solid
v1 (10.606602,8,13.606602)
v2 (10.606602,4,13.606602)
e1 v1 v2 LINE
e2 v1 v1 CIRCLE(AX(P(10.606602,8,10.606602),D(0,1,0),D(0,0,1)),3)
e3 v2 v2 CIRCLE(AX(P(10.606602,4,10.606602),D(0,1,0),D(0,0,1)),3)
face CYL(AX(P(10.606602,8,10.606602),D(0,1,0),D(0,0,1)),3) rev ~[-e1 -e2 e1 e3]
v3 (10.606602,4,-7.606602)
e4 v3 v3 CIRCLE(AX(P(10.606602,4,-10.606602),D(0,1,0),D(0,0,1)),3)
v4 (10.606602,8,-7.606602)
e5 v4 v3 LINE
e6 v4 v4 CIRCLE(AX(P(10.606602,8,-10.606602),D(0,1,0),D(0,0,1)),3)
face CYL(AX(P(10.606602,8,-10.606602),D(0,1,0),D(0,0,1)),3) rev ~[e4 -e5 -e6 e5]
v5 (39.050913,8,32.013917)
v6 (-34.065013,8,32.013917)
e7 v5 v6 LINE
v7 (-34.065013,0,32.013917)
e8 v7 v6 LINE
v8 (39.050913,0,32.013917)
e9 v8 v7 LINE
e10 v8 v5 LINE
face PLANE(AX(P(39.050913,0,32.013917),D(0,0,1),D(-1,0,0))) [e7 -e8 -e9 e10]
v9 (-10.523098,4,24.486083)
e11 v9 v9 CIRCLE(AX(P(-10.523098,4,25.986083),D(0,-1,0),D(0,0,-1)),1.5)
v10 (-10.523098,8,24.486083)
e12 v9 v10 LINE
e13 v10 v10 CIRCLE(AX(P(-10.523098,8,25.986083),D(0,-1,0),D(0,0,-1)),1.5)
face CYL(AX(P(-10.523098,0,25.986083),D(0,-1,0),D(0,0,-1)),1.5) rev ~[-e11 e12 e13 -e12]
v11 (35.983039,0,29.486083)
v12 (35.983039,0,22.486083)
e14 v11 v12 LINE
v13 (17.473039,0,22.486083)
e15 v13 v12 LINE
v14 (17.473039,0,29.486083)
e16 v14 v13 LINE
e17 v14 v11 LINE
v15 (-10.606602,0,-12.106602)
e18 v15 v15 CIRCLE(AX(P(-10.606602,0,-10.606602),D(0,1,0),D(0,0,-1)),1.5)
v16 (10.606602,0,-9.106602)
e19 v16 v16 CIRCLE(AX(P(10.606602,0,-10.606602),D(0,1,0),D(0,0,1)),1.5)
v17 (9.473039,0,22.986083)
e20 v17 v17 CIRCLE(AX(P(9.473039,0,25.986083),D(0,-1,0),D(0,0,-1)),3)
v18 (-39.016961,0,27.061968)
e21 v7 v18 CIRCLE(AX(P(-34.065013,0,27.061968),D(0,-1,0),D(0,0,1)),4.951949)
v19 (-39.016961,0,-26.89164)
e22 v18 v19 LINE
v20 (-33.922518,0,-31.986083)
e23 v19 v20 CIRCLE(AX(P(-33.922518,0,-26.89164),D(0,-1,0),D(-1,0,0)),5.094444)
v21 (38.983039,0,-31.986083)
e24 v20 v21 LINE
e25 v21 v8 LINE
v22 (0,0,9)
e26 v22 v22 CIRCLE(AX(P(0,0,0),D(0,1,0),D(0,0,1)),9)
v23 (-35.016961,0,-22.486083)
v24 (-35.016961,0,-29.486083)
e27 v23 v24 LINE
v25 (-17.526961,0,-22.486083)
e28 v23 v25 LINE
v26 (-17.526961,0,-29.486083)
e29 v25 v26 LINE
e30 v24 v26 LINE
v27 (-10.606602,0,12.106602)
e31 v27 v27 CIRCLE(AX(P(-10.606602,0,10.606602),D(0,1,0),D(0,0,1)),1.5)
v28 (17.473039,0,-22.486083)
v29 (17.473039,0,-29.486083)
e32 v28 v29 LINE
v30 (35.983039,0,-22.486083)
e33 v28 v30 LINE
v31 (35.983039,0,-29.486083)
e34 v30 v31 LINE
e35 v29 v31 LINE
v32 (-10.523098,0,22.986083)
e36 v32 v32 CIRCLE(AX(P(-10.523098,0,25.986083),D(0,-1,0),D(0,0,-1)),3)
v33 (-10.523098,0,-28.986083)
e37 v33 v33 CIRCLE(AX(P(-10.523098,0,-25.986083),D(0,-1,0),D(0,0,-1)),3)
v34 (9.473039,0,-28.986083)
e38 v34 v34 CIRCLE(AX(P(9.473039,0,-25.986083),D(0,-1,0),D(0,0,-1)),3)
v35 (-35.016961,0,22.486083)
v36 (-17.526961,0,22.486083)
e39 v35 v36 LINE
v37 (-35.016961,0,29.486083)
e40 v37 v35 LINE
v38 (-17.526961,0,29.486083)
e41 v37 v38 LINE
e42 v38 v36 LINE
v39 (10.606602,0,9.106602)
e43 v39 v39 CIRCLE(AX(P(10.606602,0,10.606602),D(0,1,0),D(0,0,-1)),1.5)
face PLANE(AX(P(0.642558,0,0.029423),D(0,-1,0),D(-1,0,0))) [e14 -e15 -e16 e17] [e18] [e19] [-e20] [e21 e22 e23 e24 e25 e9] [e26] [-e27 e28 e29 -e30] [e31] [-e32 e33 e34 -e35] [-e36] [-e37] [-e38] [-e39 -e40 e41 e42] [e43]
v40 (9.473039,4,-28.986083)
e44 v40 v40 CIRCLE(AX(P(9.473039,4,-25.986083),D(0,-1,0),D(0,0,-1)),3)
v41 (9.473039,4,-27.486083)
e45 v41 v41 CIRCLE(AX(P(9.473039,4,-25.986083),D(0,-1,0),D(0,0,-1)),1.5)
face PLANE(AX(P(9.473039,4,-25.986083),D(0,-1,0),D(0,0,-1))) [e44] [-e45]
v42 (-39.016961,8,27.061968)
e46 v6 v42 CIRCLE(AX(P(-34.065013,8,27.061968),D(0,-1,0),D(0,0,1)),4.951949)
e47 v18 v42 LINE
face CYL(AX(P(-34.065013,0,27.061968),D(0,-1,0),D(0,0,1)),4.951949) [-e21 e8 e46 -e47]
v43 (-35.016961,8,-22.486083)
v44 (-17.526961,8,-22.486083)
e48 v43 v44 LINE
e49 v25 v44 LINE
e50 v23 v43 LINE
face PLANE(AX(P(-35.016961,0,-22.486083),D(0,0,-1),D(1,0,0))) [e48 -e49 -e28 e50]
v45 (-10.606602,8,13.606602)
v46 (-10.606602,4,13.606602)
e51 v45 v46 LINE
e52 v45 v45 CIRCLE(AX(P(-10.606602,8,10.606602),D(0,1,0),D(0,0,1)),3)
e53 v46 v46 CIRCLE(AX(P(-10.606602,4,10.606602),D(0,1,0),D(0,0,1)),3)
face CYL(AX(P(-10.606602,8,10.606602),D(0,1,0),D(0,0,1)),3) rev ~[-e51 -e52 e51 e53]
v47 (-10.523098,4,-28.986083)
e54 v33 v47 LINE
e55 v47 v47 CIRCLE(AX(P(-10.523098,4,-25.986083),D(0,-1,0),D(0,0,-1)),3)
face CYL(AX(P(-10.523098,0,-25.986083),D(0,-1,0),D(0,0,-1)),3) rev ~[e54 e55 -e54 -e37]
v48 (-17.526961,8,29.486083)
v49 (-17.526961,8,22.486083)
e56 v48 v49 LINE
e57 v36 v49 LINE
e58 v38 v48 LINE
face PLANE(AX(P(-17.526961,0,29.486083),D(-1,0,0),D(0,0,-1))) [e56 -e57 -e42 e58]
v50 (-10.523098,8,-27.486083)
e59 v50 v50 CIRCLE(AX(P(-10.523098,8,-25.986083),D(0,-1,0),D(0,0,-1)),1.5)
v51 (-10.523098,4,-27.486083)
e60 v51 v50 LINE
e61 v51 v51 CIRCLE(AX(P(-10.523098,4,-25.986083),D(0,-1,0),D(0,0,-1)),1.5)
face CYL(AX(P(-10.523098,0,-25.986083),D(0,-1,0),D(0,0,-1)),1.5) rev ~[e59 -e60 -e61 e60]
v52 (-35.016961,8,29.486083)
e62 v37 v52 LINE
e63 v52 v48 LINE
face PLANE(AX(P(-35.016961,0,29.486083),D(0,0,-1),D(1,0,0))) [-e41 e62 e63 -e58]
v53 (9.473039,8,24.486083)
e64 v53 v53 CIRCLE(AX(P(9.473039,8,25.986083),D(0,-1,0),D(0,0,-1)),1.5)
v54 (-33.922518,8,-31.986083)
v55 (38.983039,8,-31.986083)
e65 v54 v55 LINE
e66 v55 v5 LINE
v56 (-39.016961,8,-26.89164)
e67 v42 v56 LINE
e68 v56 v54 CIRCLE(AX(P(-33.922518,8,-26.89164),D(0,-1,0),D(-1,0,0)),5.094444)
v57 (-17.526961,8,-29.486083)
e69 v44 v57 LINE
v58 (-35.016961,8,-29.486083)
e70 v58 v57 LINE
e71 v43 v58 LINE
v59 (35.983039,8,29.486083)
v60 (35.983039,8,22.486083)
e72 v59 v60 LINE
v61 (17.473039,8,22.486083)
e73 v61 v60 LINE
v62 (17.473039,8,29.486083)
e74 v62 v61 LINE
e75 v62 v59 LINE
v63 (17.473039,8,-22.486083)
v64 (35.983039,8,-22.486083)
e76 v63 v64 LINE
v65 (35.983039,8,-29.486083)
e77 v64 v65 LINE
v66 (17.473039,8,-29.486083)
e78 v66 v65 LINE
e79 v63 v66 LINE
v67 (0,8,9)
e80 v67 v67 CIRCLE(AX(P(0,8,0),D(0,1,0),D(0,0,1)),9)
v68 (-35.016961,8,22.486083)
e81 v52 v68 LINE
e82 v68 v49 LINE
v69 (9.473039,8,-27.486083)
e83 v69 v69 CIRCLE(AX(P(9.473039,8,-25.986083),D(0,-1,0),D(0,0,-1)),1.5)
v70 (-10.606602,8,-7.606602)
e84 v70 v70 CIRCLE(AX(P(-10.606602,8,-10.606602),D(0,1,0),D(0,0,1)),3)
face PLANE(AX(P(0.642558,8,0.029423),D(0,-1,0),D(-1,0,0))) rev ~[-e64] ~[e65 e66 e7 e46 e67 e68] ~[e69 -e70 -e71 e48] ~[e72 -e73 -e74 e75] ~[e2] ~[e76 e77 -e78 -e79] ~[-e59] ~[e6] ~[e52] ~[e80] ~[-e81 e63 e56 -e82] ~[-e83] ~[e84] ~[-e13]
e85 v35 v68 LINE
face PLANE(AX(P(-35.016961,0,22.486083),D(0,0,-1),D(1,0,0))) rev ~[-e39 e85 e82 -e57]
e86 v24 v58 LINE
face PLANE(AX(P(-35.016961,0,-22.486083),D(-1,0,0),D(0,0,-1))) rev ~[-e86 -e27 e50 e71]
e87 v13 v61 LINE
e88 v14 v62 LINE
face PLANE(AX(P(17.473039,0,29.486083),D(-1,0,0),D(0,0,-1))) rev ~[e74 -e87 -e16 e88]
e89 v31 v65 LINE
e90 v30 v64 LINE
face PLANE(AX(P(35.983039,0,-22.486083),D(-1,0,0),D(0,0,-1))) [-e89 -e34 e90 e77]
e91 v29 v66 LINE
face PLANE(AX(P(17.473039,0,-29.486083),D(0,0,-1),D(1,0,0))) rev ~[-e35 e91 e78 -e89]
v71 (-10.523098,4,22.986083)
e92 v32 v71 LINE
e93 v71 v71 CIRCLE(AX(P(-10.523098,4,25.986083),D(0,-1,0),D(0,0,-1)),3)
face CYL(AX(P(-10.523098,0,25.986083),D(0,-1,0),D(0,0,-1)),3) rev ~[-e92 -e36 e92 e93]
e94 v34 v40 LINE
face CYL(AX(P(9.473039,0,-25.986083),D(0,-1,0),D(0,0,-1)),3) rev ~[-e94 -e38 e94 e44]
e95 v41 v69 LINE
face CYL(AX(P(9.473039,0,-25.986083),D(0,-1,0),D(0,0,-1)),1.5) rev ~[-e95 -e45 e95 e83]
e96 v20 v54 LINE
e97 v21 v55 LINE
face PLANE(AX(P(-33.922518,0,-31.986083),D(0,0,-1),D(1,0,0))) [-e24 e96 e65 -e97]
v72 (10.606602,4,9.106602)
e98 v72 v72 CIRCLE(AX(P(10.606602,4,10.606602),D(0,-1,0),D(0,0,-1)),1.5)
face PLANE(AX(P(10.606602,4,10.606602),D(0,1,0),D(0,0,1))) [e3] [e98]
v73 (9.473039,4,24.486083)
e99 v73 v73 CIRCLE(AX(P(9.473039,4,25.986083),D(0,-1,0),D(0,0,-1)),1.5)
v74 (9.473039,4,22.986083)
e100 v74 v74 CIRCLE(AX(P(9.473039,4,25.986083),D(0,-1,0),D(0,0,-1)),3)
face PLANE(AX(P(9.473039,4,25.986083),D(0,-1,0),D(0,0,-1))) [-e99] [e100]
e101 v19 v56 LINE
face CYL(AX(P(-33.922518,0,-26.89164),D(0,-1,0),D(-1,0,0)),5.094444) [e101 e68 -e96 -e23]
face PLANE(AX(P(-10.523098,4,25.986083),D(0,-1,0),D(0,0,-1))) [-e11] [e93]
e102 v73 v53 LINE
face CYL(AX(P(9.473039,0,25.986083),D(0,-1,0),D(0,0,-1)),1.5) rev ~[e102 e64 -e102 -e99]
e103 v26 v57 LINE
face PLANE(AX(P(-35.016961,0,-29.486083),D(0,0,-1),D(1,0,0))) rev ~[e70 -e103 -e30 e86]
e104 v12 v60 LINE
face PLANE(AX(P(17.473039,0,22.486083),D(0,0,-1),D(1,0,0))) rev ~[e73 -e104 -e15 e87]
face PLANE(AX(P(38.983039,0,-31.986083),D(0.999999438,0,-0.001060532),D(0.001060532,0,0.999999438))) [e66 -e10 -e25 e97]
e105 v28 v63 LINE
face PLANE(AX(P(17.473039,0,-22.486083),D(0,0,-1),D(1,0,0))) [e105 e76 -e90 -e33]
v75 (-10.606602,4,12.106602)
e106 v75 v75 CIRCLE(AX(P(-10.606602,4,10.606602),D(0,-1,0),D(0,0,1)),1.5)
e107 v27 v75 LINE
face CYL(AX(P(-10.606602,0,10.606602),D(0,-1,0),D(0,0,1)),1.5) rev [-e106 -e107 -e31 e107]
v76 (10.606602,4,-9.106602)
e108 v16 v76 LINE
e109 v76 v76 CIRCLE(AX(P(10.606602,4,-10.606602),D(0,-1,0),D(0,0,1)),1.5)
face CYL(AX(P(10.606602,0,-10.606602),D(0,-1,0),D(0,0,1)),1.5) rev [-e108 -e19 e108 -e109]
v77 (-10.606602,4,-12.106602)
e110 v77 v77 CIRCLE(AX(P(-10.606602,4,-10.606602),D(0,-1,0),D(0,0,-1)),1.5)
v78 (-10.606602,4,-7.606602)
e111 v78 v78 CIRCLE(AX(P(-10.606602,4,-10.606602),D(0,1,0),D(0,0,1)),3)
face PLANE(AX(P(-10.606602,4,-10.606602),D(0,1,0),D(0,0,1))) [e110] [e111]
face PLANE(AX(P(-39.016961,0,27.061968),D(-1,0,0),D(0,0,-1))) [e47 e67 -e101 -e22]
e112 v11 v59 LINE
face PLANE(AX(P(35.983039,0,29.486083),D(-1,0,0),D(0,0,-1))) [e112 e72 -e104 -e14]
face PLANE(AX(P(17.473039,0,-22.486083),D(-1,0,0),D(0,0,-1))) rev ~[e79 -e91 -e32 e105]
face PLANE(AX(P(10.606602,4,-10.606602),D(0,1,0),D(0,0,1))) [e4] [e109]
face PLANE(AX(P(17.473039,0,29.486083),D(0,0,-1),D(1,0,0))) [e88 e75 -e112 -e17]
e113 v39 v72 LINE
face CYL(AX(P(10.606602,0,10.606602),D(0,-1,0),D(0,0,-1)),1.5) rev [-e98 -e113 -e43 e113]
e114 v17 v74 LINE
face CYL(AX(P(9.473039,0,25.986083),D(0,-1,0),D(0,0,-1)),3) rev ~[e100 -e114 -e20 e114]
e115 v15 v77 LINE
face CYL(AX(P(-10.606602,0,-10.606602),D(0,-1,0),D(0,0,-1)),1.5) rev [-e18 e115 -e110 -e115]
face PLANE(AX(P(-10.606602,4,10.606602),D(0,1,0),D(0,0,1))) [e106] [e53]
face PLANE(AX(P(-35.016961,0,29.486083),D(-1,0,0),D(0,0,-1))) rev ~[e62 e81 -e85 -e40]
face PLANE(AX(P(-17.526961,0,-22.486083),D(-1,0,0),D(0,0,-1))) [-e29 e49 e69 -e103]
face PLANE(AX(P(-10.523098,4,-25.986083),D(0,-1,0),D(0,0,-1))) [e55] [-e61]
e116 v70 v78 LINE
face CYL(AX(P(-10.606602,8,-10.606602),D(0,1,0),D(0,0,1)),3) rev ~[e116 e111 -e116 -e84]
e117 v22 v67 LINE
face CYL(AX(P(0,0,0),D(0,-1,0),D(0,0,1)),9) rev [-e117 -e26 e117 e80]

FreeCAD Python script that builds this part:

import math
import FreeCAD as App
import Part
import Sketcher
from FreeCAD import Vector
Q = App.Units.Quantity

doc = App.newDocument("Part")
body = doc.addObject("PartDesign::Body", "Body")

# Sketch on XZ plane
sketch1 = body.newObject("Sketcher::SketchObject", "Sketch")
sketch1.AttachmentSupport = (doc.getObject("XZ_Plane"), [""])
sketch1.MapMode = "FlatFace"
sketch1.addGeometry([
    Part.LineSegment(Vector(39, -32, 0), Vector(-33.9, -32, 0)),  # 0
    Part.ArcOfCircle(Part.Circle(Vector(-33.9, -26.9, 0), Vector(0, 0, 1), 5.1), math.radians(180), math.radians(270)),  # 1
    Part.LineSegment(Vector(-39, -26.9, 0), Vector(-39, 27.1, 0)),  # 2
    Part.ArcOfCircle(Part.Circle(Vector(-34.1, 27.1, 0), Vector(0, 0, 1), 5), math.radians(90), math.radians(180)),  # 3
    Part.LineSegment(Vector(-34.1, 32, 0), Vector(39.1, 32, 0)),  # 4
    Part.LineSegment(Vector(39.1, 32, 0), Vector(39, -32, 0)),  # 5
    Part.LineSegment(Vector(17.5, 29.5, 0), Vector(17.5, 22.5, 0)),  # 6
    Part.LineSegment(Vector(17.5, 22.5, 0), Vector(36, 22.5, 0)),  # 7
    Part.LineSegment(Vector(36, 22.5, 0), Vector(36, 29.5, 0)),  # 8
    Part.LineSegment(Vector(36, 29.5, 0), Vector(17.5, 29.5, 0)),  # 9
    Part.Circle(Vector(10.6, 10.6, 0), Vector(0, 0, 1), 1.5),  # 10
    Part.LineSegment(Vector(-35, 29.5, 0), Vector(-35, 22.5, 0)),  # 11
    Part.LineSegment(Vector(-35, 22.5, 0), Vector(-17.5, 22.5, 0)),  # 12
    Part.LineSegment(Vector(-17.5, 22.5, 0), Vector(-17.5, 29.5, 0)),  # 13
    Part.LineSegment(Vector(-17.5, 29.5, 0), Vector(-35, 29.5, 0)),  # 14
    Part.Circle(Vector(-10.6, 10.6, 0), Vector(0, 0, 1), 1.5),  # 15
    Part.Circle(Vector(10.6, -10.6, 0), Vector(0, 0, 1), 1.5),  # 16
    Part.LineSegment(Vector(17.5, -22.5, 0), Vector(17.5, -29.5, 0)),  # 17
    Part.LineSegment(Vector(17.5, -29.5, 0), Vector(36, -29.5, 0)),  # 18
    Part.LineSegment(Vector(36, -29.5, 0), Vector(36, -22.5, 0)),  # 19
    Part.LineSegment(Vector(36, -22.5, 0), Vector(17.5, -22.5, 0)),  # 20
    Part.Circle(Vector(0, 0, 0), Vector(0, 0, 1), 9),  # 21
    Part.Circle(Vector(-10.6, -10.6, 0), Vector(0, 0, 1), 1.5),  # 22
    Part.LineSegment(Vector(-35, -22.5, 0), Vector(-35, -29.5, 0)),  # 23
    Part.LineSegment(Vector(-35, -29.5, 0), Vector(-17.5, -29.5, 0)),  # 24
    Part.LineSegment(Vector(-17.5, -29.5, 0), Vector(-17.5, -22.5, 0)),  # 25
    Part.LineSegment(Vector(-17.5, -22.5, 0), Vector(-35, -22.5, 0)),  # 26
], False)
sketch1.addConstraint([
    Sketcher.Constraint("Tangent", 0, 2, 1, 2),
    Sketcher.Constraint("Tangent", 1, 1, 2, 1),
    Sketcher.Constraint("Tangent", 2, 2, 3, 2),
    Sketcher.Constraint("Tangent", 3, 1, 4, 1),
    Sketcher.Constraint("Coincident", 4, 2, 5, 1),
    Sketcher.Constraint("Coincident", 5, 2, 0, 1),
    Sketcher.Constraint("Coincident", 6, 2, 7, 1),
    Sketcher.Constraint("Coincident", 7, 2, 8, 1),
    Sketcher.Constraint("Coincident", 8, 2, 9, 1),
    Sketcher.Constraint("Coincident", 9, 2, 6, 1),
    Sketcher.Constraint("Coincident", 11, 2, 12, 1),
    Sketcher.Constraint("Coincident", 12, 2, 13, 1),
    Sketcher.Constraint("Coincident", 13, 2, 14, 1),
    Sketcher.Constraint("Coincident", 14, 2, 11, 1),
    Sketcher.Constraint("Coincident", 17, 2, 18, 1),
    Sketcher.Constraint("Coincident", 18, 2, 19, 1),
    Sketcher.Constraint("Coincident", 19, 2, 20, 1),
    Sketcher.Constraint("Coincident", 20, 2, 17, 1),
    Sketcher.Constraint("Coincident", 23, 2, 24, 1),
    Sketcher.Constraint("Coincident", 24, 2, 25, 1),
    Sketcher.Constraint("Coincident", 25, 2, 26, 1),
    Sketcher.Constraint("Coincident", 26, 2, 23, 1),
    Sketcher.Constraint("Horizontal", 0),
    Sketcher.Constraint("Vertical", 2),
    Sketcher.Constraint("Horizontal", 4),
    Sketcher.Constraint("Vertical", 6),
    Sketcher.Constraint("Horizontal", 7),
    Sketcher.Constraint("Vertical", 8),
    Sketcher.Constraint("Horizontal", 9),
    Sketcher.Constraint("Vertical", 11),
    Sketcher.Constraint("Horizontal", 12),
    Sketcher.Constraint("Vertical", 13),
    Sketcher.Constraint("Horizontal", 14),
    Sketcher.Constraint("Vertical", 17),
    Sketcher.Constraint("Horizontal", 18),
    Sketcher.Constraint("Vertical", 19),
    Sketcher.Constraint("Horizontal", 20),
    Sketcher.Constraint("Vertical", 23),
    Sketcher.Constraint("Horizontal", 24),
    Sketcher.Constraint("Vertical", 25),
    Sketcher.Constraint("Horizontal", 26),
    Sketcher.Constraint("Coincident", 21, 3, -1, 1),
    Sketcher.Constraint("Equal", 10, 15),
    Sketcher.Constraint("Equal", 15, 16),
    Sketcher.Constraint("Equal", 16, 22),
    Sketcher.Constraint("Symmetric", 15, 3, 16, 3, -1, 1),
    Sketcher.Constraint("Symmetric", 10, 3, 22, 3, -1, 1),
    Sketcher.Constraint("Symmetric", 10, 3, 15, 3, -2),
    Sketcher.Constraint("Symmetric", 9, 2, 17, 2, -1),
    Sketcher.Constraint("Symmetric", 7, 2, 19, 2, -1),
    Sketcher.Constraint("Symmetric", 14, 2, 23, 2, -1),
    Sketcher.Constraint("Symmetric", 12, 2, 25, 2, -1),
    Sketcher.Constraint("Horizontal", 7, 2, 11, 2),
    Sketcher.Constraint("Horizontal", 9, 2, 13, 2),
    Sketcher.Constraint("Diameter", 10, Q("3 mm")),
    Sketcher.Constraint("Diameter", 21, Q("18 mm")),
    Sketcher.Constraint("DistanceY", 6, 2, 6, 1, Q("7 mm")),
    Sketcher.Constraint("DistanceY", 5, 2, 4, 2, Q("64 mm")),
    Sketcher.Constraint("DistanceX", 2, 2, 11, 2, Q("4 mm")),
    Sketcher.Constraint("DistanceX", 18, 2, 5, 2, Q("3 mm")),
    Sketcher.Constraint("DistanceX", 7, 1, 7, 2, Q("18.51 mm")),
    Sketcher.Constraint("DistanceX", 12, 1, 12, 2, Q("17.49 mm")),
    Sketcher.Constraint("DistanceY", 5, 2, 17, 2, Q("2.5 mm")),
    Sketcher.Constraint("Radius", 3, Q("4.951949 mm")),
    Sketcher.Constraint("Radius", 1, Q("5.094444 mm")),
    Sketcher.Constraint("DistanceX", -1, 1, 10, 3, Q("10.606602 mm")),
    Sketcher.Constraint("DistanceY", -1, 1, 10, 3, Q("10.606602 mm")),
    Sketcher.Constraint("DistanceX", 0, 2, 0, 1, Q("72.905556 mm")),
    Sketcher.Constraint("DistanceX", 4, 1, 4, 2, Q("73.115926 mm")),
    Sketcher.Constraint("DistanceY", 1, 3, -1, 1, Q("26.89164 mm")),
    Sketcher.Constraint("DistanceX", 1, 1, -1, 1, Q("39.016961 mm")),
])
pad1 = body.newObject("PartDesign::Pad", "Pad")
pad1.Profile = sketch1
pad1.Length = 8
pad1.Reversed = True

# Sketch on XZ plane
sketch2 = body.newObject("Sketcher::SketchObject", "Sketch001")
sketch2.AttachmentSupport = (doc.getObject("XZ_Plane"), [""])
sketch2.MapMode = "FlatFace"
sketch2.AttachmentOffset = App.Placement(Vector(0, 0, -8), App.Rotation())
sketch2.addGeometry([
    Part.Circle(Vector(10.6, -10.6, 0), Vector(0, 0, 1), 3),
    Part.Circle(Vector(10.6, 10.6, 0), Vector(0, 0, 1), 3),
    Part.Circle(Vector(-10.6, 10.6, 0), Vector(0, 0, 1), 3),
    Part.Circle(Vector(-10.6, -10.6, 0), Vector(0, 0, 1), 3),
], False)
sketch2.addConstraint([
    Sketcher.Constraint("Equal", 0, 1),
    Sketcher.Constraint("Equal", 1, 2),
    Sketcher.Constraint("Equal", 2, 3),
    Sketcher.Constraint("Symmetric", 0, 3, 2, 3, -1, 1),
    Sketcher.Constraint("Symmetric", 1, 3, 3, 3, -1, 1),
    Sketcher.Constraint("Symmetric", 1, 3, 2, 3, -2),
    Sketcher.Constraint("Diameter", 0, Q("6 mm")),
    Sketcher.Constraint("DistanceX", -1, 1, 0, 3, Q("10.606602 mm")),
    Sketcher.Constraint("DistanceY", 0, 3, -1, 1, Q("10.606602 mm")),
])
pocket1 = body.newObject("PartDesign::Pocket", "Pocket")
pocket1.Profile = sketch2
pocket1.Length = 4
pocket1.Reversed = True

# Sketch on XZ plane
sketch3 = body.newObject("Sketcher::SketchObject", "Sketch002")
sketch3.AttachmentSupport = (doc.getObject("XZ_Plane"), [""])
sketch3.MapMode = "FlatFace"
sketch3.addGeometry([
    Part.Circle(Vector(-10.5, 26, 0), Vector(0, 0, 1), 1.5),
    Part.Circle(Vector(9.5, 26, 0), Vector(0, 0, 1), 1.5),
    Part.Circle(Vector(9.5, -26, 0), Vector(0, 0, 1), 1.5),
    Part.Circle(Vector(-10.5, -26, 0), Vector(0, 0, 1), 1.5),
], False)
sketch3.addConstraint([
    Sketcher.Constraint("Equal", 0, 1),
    Sketcher.Constraint("Equal", 1, 2),
    Sketcher.Constraint("Equal", 2, 3),
    Sketcher.Constraint("Symmetric", 1, 3, 2, 3, -1),
    Sketcher.Constraint("Symmetric", 0, 3, 3, 3, -1),
    Sketcher.Constraint("Horizontal", 0, 3, 1, 3),
    Sketcher.Constraint("Diameter", 0, Q("3 mm")),
    Sketcher.Constraint("DistanceX", -1, 1, 1, 3, Q("9.473039 mm")),
    Sketcher.Constraint("DistanceX", 0, 3, -1, 1, Q("10.523098 mm")),
    Sketcher.Constraint("DistanceY", -1, 1, 0, 3, Q("25.986083 mm")),
])
pocket2 = body.newObject("PartDesign::Pocket", "Pocket001")
pocket2.Profile = sketch3
pocket2.Type = "ThroughAll"

# Sketch on XZ plane
sketch4 = body.newObject("Sketcher::SketchObject", "Sketch003")
sketch4.AttachmentSupport = (doc.getObject("XZ_Plane"), [""])
sketch4.MapMode = "FlatFace"
sketch4.addGeometry([
    Part.Circle(Vector(-10.5, -26, 0), Vector(0, 0, 1), 3),  # 0
    Part.Circle(Vector(-10.5, -26, 0), Vector(0, 0, 1), 1.5),  # 1
    Part.Circle(Vector(9.5, -26, 0), Vector(0, 0, 1), 3),  # 2
    Part.Circle(Vector(9.5, -26, 0), Vector(0, 0, 1), 1.5),  # 3
    Part.Circle(Vector(9.5, 26, 0), Vector(0, 0, 1), 3),  # 4
    Part.Circle(Vector(9.5, 26, 0), Vector(0, 0, 1), 1.5),  # 5
    Part.Circle(Vector(-10.5, 26, 0), Vector(0, 0, 1), 3),  # 6
    Part.Circle(Vector(-10.5, 26, 0), Vector(0, 0, 1), 1.5),  # 7
], False)
sketch4.addConstraint([
    Sketcher.Constraint("Coincident", 1, 3, 0, 3),
    Sketcher.Constraint("Coincident", 3, 3, 2, 3),
    Sketcher.Constraint("Coincident", 5, 3, 4, 3),
    Sketcher.Constraint("Coincident", 7, 3, 6, 3),
    Sketcher.Constraint("Equal", 0, 2),
    Sketcher.Constraint("Equal", 1, 3),
    Sketcher.Constraint("Equal", 2, 4),
    Sketcher.Constraint("Equal", 3, 5),
    Sketcher.Constraint("Equal", 4, 6),
    Sketcher.Constraint("Equal", 5, 7),
    Sketcher.Constraint("Symmetric", 2, 3, 4, 3, -1),
    Sketcher.Constraint("Symmetric", 0, 3, 6, 3, -1),
    Sketcher.Constraint("Horizontal", 1, 3, 2, 3),
    Sketcher.Constraint("Diameter", 0, Q("6 mm")),
    Sketcher.Constraint("Diameter", 1, Q("3 mm")),
    Sketcher.Constraint("DistanceX", -1, 1, 2, 3, Q("9.473039 mm")),
    Sketcher.Constraint("DistanceX", 0, 3, -1, 1, Q("10.523098 mm")),
    Sketcher.Constraint("DistanceY", 0, 3, -1, 1, Q("25.986083 mm")),
])
pocket3 = body.newObject("PartDesign::Pocket", "Pocket002")
pocket3.Profile = sketch4
pocket3.Length = 4

doc.recompute()
